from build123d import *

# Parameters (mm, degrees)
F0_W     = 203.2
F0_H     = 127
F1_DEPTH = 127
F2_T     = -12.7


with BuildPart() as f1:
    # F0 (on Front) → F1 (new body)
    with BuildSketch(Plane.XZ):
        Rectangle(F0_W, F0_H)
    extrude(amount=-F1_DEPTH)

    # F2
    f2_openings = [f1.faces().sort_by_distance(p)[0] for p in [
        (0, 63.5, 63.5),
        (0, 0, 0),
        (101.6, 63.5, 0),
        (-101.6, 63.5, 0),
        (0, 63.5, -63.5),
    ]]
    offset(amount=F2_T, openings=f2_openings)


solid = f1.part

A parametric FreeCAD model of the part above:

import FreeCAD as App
import Part
import Sketcher

V = App.Vector
Q = App.Units.Quantity


def faces_at(feature, points):
    """Names of the faces that lie closest to the given points."""
    faces = feature.Shape.Faces
    near = lambda p: min(range(len(faces)), key=lambda i: faces[i].distToShape(Part.Vertex(*p))[0])
    return sorted({f"Face{near(p) + 1}" for p in points})


def add_polygon(sketch, points):
    """Adds a closed chain of lines whose ends are joined by coincident constraints."""
    first, n = sketch.GeometryCount, len(points)
    for a, b in zip(points, points[1:] + points[:1]):
        sketch.addGeometry(Part.LineSegment(App.Vector(*a, 0), App.Vector(*b, 0)), False)
    for i in range(n):
        sketch.addConstraint(Sketcher.Constraint("Coincident", first + i, 2, first + (i + 1) % n, 1))

doc = App.newDocument("Part")
params = doc.addObject("Spreadsheet::Sheet", "Params")
for row, (alias, value) in enumerate([
    ("sketch1_width", "8 in"),
    ("sketch1_height", "5 in"),
    ("pad1_length", "5 in"),
    ("thickness_wall", "0.5 in"),
], start=1):
    params.set(f"A{row}", alias)
    params.set(f"B{row}", "=" + value)
    params.setAlias(f"B{row}", alias)

body = doc.addObject("PartDesign::Body", "Body")

sketch1 = doc.addObject("Sketcher::SketchObject", "Sketch")
body.addObject(sketch1)
sketch1.AttachmentSupport = (doc.XZ_Plane, [""])
sketch1.MapMode = "FlatFace"
add_polygon(sketch1, [(-101.6, 63.5), (-101.6, -63.5), (101.6, -63.5), (101.6, 63.5)])
sketch1.addConstraint([
    Sketcher.Constraint("Vertical", 0),
    Sketcher.Constraint("Horizontal", 1),
    Sketcher.Constraint("Vertical", 2),
    Sketcher.Constraint("Horizontal", 3),
    Sketcher.Constraint("Symmetric", 0, 2, 2, 2, -1, 1),
    Sketcher.Constraint("DistanceX", 1, 1, 1, 2, Q("8 in")),
    Sketcher.Constraint("DistanceY", 0, 2, 0, 1, Q("5 in")),
])
sketch1.setExpression("Constraints[9]", "Params.sketch1_width")
sketch1.setExpression("Constraints[10]", "Params.sketch1_height")
pad1 = doc.addObject("PartDesign::Pad", "Pad")
body.addObject(pad1)
pad1.Profile = sketch1
pad1.setExpression("Length", "Params.pad1_length")
pad1.Reversed = True
doc.recompute()

thickness = doc.addObject("PartDesign::Thickness", "Thickness")
body.addObject(thickness)
thickness.Base = (pad1, faces_at(pad1, [
    (0, 63.5, 63.5),
    (0, 0, 0),
    (101.6, 63.5, 0),
    (-101.6, 63.5, 0),
    (0, 63.5, -63.5),
]))
thickness.setExpression("Value", "Params.thickness_wall")
thickness.Reversed = True
thickness.Join = "Arc"

doc.recompute()
